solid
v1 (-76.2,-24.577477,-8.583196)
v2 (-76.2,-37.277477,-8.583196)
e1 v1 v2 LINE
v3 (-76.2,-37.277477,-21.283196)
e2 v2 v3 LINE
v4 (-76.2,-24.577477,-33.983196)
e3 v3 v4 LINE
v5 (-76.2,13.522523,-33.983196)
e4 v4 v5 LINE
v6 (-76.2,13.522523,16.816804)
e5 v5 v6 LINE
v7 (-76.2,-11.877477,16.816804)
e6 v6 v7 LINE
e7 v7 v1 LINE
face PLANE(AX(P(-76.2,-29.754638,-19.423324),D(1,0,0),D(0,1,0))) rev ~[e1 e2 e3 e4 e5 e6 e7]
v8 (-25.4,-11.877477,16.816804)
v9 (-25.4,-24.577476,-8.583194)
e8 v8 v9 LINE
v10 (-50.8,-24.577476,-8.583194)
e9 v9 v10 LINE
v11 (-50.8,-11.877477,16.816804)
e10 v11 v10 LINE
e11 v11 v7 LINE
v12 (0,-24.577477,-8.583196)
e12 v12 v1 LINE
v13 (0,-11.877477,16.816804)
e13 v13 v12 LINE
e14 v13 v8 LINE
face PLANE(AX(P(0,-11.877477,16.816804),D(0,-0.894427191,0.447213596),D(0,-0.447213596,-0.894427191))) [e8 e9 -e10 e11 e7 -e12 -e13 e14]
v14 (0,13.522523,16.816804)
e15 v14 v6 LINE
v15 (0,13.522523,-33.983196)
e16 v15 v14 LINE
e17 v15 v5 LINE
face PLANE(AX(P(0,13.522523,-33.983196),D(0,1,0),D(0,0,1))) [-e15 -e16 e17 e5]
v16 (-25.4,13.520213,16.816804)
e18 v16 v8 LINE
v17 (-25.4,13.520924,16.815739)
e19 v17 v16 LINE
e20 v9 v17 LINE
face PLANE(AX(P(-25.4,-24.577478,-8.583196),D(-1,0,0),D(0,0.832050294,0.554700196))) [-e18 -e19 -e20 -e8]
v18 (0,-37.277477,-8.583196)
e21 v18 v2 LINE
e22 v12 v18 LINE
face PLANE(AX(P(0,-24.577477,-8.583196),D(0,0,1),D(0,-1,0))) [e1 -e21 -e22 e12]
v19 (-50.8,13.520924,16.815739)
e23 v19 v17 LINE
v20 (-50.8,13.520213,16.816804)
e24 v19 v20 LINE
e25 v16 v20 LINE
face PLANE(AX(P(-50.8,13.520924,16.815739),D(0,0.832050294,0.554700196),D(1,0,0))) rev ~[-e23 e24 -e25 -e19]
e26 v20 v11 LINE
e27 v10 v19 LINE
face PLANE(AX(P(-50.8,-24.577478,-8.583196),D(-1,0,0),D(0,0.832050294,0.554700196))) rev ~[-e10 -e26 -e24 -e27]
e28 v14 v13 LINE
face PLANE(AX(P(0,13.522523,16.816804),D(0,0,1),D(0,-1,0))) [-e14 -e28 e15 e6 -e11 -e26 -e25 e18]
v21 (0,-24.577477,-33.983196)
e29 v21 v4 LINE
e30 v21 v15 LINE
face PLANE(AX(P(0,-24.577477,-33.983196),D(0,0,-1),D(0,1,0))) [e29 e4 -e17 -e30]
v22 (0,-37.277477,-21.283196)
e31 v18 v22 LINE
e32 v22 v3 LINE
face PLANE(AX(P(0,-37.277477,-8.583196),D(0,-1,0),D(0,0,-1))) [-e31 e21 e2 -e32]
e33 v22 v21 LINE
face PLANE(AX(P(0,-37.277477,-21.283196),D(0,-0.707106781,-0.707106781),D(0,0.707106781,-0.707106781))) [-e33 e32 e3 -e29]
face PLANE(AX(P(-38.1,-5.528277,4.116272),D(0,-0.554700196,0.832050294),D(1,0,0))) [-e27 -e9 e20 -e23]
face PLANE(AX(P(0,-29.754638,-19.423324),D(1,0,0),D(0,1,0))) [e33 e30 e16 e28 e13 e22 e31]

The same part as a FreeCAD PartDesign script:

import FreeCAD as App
import Part
import Sketcher
from FreeCAD import Vector
Q = App.Units.Quantity

doc = App.newDocument("Part")
body = doc.addObject("PartDesign::Body", "Body")

# Sketch on YZ plane
sketch1 = body.newObject("Sketcher::SketchObject", "Sketch")
sketch1.AttachmentSupport = (doc.getObject("YZ_Plane"), [""])
sketch1.MapMode = "FlatFace"
sketch1.addGeometry([
    Part.LineSegment(Vector(14, 17, 0), Vector(-12, 17, 0)),  # 0
    Part.LineSegment(Vector(-12, 17, 0), Vector(-25, -9, 0)),  # 1
    Part.LineSegment(Vector(-25, -9, 0), Vector(-25, -34, 0)),  # 2
    Part.LineSegment(Vector(-25, -34, 0), Vector(14, -34, 0)),  # 3
    Part.LineSegment(Vector(14, -34, 0), Vector(14, 17, 0)),  # 4
], False)
sketch1.addConstraint([
    Sketcher.Constraint("Coincident", 0, 2, 1, 1),
    Sketcher.Constraint("Coincident", 1, 2, 2, 1),
    Sketcher.Constraint("Coincident", 2, 2, 3, 1),
    Sketcher.Constraint("Coincident", 3, 2, 4, 1),
    Sketcher.Constraint("Coincident", 4, 2, 0, 1),
    Sketcher.Constraint("Horizontal", 0),
    Sketcher.Constraint("Vertical", 2),
    Sketcher.Constraint("Horizontal", 3),
    Sketcher.Constraint("Vertical", 4),
    Sketcher.Constraint("Equal", 0, 2),
    Sketcher.Constraint("DistanceX", 0, 2, 0, 1, Q("1 in")),
    Sketcher.Constraint("DistanceY", 4, 1, 4, 2, Q("2 in")),
    Sketcher.Constraint("DistanceX", 3, 1, 3, 2, Q("1.5 in")),
    Sketcher.Constraint("DistanceX", 0, 2, -1, 1, 11.877477),
    Sketcher.Constraint("DistanceY", -1, 1, 0, 2, 16.816804),
])
pad1 = body.newObject("PartDesign::Pad", "Pad")
pad1.Profile = sketch1
pad1.Length = Q("3 in")
pad1.Reversed = True

# Sketch on YZ plane
sketch2 = body.newObject("Sketcher::SketchObject", "Sketch001")
sketch2.AttachmentSupport = (doc.getObject("YZ_Plane"), [""])
sketch2.MapMode = "FlatFace"
sketch2.addGeometry([
    Part.LineSegment(Vector(-25, -34, 0), Vector(-25, -9, 0)),
    Part.LineSegment(Vector(-25, -9, 0), Vector(-37, -9, 0)),
    Part.LineSegment(Vector(-37, -9, 0), Vector(-37, -21, 0)),
    Part.LineSegment(Vector(-37, -21, 0), Vector(-25, -34, 0)),
], False)
sketch2.addConstraint([
    Sketcher.Constraint("Coincident", 0, 2, 1, 1),
    Sketcher.Constraint("Coincident", 1, 2, 2, 1),
    Sketcher.Constraint("Coincident", 2, 2, 3, 1),
    Sketcher.Constraint("Coincident", 3, 2, 0, 1),
    Sketcher.Constraint("Vertical", 0),
    Sketcher.Constraint("Horizontal", 1),
    Sketcher.Constraint("Vertical", 2),
    Sketcher.Constraint("Equal", 1, 2),
    Sketcher.Constraint("DistanceY", 0, 1, 0, 2, Q("1 in")),
    Sketcher.Constraint("DistanceX", 1, 2, 1, 1, Q("0.5 in")),
    Sketcher.Constraint("DistanceX", 0, 2, -1, 1, 24.577477),
    Sketcher.Constraint("DistanceY", 0, 2, -1, 1, 8.583196),
])
pad2 = body.newObject("PartDesign::Pad", "Pad001")
pad2.Profile = sketch2
pad2.Length = Q("3 in")
pad2.Reversed = True

# Sketch on an angled plane
sketch3 = body.newObject("Sketcher::SketchObject", "Sketch002")
sketch3.Placement = App.Placement(Vector(0, -3.600826, 5.401239), App.Rotation(Vector(1, 0, 0), Vector(0, 0.832050294, 0.554700196), Vector(0, -0.554700196, 0.832050294), "ZXY"))
sketch3.addGeometry([
    Part.LineSegment(Vector(-51, 21, 0), Vector(-51, -25, 0)),
    Part.LineSegment(Vector(-51, -25, 0), Vector(-25, -25, 0)),
    Part.LineSegment(Vector(-25, -25, 0), Vector(-25, 21, 0)),
    Part.LineSegment(Vector(-25, 21, 0), Vector(-51, 21, 0)),
], False)
sketch3.addConstraint([
    Sketcher.Constraint("Coincident", 0, 2, 1, 1),
    Sketcher.Constraint("Coincident", 1, 2, 2, 1),
    Sketcher.Constraint("Coincident", 2, 2, 3, 1),
    Sketcher.Constraint("Coincident", 3, 2, 0, 1),
    Sketcher.Constraint("Vertical", 0),
    Sketcher.Constraint("Horizontal", 1),
    Sketcher.Constraint("Vertical", 2),
    Sketcher.Constraint("Horizontal", 3),
    Sketcher.Constraint("DistanceX", 1, 1, 1, 2, Q("1 in")),
    Sketcher.Constraint("DistanceX", 0, 2, -1, 1, Q("2 in")),
    Sketcher.Constraint("DistanceY", 0, 2, 0, 1, Q("1.8027 in")),
    Sketcher.Constraint("DistanceY", -1, 1, 2, 2, 20.577782),
])
pocket1 = body.newObject("PartDesign::Pocket", "Pocket")
pocket1.Profile = sketch3
pocket1.Length = Q("1 in")
pocket1.Reversed = True

doc.recompute()
